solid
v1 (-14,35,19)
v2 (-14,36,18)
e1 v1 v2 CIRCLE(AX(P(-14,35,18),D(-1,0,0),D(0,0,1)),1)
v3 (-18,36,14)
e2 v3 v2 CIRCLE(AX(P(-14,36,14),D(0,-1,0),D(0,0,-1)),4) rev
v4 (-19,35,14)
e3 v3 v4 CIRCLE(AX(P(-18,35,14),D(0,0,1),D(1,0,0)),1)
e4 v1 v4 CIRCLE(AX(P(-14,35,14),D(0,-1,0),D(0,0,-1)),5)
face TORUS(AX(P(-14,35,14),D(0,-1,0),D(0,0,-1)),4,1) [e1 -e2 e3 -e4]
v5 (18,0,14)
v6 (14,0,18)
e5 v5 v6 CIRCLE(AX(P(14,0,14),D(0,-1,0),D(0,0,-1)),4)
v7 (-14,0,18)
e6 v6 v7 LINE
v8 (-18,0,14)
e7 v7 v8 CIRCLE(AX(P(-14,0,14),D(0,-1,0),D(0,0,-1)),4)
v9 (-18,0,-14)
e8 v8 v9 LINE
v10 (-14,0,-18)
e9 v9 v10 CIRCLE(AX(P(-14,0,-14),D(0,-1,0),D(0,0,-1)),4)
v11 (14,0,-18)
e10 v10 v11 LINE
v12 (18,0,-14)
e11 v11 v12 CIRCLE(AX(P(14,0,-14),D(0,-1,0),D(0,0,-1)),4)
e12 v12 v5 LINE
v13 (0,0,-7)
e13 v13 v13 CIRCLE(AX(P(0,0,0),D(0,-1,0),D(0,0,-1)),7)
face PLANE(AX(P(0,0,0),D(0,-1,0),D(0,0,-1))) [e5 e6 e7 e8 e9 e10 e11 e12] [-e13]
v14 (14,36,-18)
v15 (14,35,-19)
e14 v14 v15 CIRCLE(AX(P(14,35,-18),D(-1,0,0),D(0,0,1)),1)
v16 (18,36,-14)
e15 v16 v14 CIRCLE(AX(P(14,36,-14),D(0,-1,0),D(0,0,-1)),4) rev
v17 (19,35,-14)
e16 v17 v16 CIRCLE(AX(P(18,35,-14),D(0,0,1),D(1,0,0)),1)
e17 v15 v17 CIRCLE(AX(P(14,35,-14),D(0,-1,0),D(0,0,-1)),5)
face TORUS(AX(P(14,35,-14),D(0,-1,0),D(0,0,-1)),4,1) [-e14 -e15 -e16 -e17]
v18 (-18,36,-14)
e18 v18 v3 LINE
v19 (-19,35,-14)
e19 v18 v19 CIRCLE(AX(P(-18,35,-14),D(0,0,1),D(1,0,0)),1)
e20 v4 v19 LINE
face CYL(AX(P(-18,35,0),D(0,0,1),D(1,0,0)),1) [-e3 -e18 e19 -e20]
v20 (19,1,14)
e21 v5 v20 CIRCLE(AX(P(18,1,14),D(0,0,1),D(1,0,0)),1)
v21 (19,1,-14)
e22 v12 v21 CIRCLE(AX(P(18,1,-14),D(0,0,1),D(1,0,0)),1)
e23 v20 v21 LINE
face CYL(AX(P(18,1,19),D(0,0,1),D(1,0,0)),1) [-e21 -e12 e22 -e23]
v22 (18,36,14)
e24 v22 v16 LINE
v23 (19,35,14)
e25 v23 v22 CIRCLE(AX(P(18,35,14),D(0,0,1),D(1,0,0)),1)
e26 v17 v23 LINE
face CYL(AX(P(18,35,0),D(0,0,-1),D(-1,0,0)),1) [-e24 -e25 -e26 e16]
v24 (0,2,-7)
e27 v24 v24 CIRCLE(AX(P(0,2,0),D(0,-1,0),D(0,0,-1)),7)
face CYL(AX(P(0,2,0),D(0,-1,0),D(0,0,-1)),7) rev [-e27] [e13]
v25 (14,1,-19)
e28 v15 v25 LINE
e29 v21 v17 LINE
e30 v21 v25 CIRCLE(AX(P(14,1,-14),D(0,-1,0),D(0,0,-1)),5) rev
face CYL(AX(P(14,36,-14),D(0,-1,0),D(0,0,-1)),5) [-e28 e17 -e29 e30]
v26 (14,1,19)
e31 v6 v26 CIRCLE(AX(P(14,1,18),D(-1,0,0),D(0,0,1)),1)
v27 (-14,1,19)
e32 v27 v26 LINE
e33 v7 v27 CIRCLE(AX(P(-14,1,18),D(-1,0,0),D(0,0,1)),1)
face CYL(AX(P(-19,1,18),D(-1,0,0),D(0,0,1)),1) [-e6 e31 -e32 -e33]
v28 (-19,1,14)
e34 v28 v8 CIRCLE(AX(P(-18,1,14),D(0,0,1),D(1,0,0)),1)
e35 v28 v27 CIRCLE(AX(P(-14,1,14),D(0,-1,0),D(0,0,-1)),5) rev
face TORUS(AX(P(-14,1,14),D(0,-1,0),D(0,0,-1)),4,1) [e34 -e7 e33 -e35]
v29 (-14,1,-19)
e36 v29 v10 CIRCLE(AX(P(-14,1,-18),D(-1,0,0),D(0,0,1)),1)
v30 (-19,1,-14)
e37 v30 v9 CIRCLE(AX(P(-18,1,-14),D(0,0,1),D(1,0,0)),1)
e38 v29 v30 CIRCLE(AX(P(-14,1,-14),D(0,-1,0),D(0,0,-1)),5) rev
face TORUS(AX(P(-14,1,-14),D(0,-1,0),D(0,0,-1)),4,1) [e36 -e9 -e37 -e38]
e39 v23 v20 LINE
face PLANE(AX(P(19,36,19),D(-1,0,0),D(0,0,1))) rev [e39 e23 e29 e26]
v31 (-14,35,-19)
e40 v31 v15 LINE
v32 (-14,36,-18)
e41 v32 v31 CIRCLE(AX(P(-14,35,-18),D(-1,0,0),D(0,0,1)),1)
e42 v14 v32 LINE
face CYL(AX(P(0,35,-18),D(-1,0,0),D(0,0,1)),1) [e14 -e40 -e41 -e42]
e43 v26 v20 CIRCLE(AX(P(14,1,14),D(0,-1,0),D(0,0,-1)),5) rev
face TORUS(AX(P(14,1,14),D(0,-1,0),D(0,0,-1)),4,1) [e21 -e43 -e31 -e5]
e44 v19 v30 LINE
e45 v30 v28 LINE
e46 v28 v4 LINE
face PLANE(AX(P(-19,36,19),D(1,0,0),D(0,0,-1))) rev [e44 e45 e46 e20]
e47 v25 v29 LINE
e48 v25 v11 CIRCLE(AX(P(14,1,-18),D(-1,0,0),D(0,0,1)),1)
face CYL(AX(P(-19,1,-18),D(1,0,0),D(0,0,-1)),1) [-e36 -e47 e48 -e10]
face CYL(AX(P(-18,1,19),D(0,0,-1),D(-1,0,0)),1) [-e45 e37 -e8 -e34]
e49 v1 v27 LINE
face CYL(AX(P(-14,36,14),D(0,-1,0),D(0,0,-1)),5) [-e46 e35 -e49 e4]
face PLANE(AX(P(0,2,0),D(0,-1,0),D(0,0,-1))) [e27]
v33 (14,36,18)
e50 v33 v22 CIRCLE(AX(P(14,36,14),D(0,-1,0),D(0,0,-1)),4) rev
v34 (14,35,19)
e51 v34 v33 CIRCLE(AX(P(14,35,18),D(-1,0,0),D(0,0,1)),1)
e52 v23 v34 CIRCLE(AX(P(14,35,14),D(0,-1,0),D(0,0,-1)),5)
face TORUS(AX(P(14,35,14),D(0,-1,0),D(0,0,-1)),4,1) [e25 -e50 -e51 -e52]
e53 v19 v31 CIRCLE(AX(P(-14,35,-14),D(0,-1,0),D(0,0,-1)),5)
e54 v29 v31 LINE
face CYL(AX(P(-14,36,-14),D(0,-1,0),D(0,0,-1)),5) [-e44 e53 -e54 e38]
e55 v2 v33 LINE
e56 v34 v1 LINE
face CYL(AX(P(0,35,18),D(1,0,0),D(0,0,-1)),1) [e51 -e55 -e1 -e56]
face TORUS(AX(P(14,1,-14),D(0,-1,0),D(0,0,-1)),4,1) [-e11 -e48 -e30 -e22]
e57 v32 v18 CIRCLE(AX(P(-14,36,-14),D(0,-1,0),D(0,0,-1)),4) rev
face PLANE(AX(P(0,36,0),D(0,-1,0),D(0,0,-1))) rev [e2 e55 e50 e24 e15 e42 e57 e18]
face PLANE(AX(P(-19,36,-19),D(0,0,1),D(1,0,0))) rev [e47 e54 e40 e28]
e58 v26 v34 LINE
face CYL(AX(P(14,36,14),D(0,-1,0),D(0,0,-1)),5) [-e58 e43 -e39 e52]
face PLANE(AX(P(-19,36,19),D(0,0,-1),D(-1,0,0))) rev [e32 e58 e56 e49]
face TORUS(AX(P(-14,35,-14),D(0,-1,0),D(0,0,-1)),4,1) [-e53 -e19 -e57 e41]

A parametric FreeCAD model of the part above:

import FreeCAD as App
import Part
import Sketcher

V = App.Vector
Q = App.Units.Quantity


def edges_at(feature, points):
    """Names of the edges that pass closest to the given points."""
    edges = feature.Shape.Edges
    near = lambda p: min(range(len(edges)), key=lambda i: edges[i].distToShape(Part.Vertex(*p))[0])
    return sorted({f"Edge{near(p) + 1}" for p in points})


def add_polygon(sketch, points):
    """Adds a closed chain of lines whose ends are joined by coincident constraints."""
    first, n = sketch.GeometryCount, len(points)
    for a, b in zip(points, points[1:] + points[:1]):
        sketch.addGeometry(Part.LineSegment(App.Vector(*a, 0), App.Vector(*b, 0)), False)
    for i in range(n):
        sketch.addConstraint(Sketcher.Constraint("Coincident", first + i, 2, first + (i + 1) % n, 1))

doc = App.newDocument("Part")
body = doc.addObject("PartDesign::Body", "Body")

sketch1 = body.newObject("Sketcher::SketchObject", "Sketch")
sketch1.AttachmentSupport = (doc.getObject("XZ_Plane"), [""])
sketch1.MapMode = "FlatFace"
add_polygon(sketch1, [(-19, -19), (-19, 19), (19, 19), (19, -19)])
sketch1.addConstraint(Sketcher.Constraint("Vertical", 0))
sketch1.addConstraint(Sketcher.Constraint("Horizontal", 1))
sketch1.addConstraint(Sketcher.Constraint("Vertical", 2))
sketch1.addConstraint(Sketcher.Constraint("Horizontal", 3))
sketch1.addConstraint(Sketcher.Constraint("Symmetric", 0, 2, 2, 2, -1, 1))
sketch1.addConstraint(Sketcher.Constraint("Equal", 3, 0))
sketch1.addConstraint(Sketcher.Constraint("DistanceX", 1, 1, 1, 2, Q("38 mm")))
pad1 = body.newObject("PartDesign::Pad", "Pad")
pad1.Profile = sketch1
pad1.Length = 36
pad1.Reversed = True

sketch2 = body.newObject("Sketcher::SketchObject", "Sketch001")
sketch2.AttachmentSupport = (doc.getObject("XZ_Plane"), [""])
sketch2.MapMode = "FlatFace"
sketch2.addGeometry(Part.Circle(V(0, 0, 0), V(0, 0, 1), 7), False)
sketch2.addConstraint(Sketcher.Constraint("Coincident", 0, 3, -1, 1))
sketch2.addConstraint(Sketcher.Constraint("Diameter", 0, Q("14 mm")))
pocket1 = body.newObject("PartDesign::Pocket", "Pocket")
pocket1.Profile = sketch2
pocket1.Length = 2
doc.recompute()

fillet = body.newObject("PartDesign::Fillet", "Fillet")
fillet.Base = (pocket1, edges_at(pocket1, [
    (19, 18, 19),
    (-19, 18, 19),
    (-19, 18, -19),
    (19, 18, -19),
]))
fillet.Radius = 5
doc.recompute()

fillet2 = body.newObject("PartDesign::Fillet", "Fillet001")
fillet2.Base = (fillet, edges_at(fillet, [
    (0, 0, -19),
    (0, 36, -19),
    (19, 0, 0),
    (0, 0, 19),
    (-19, 0, 0),
    (-17.536, 0, 17.536),
    (-17.536, 0, -17.536),
    (17.536, 0, 17.536),
    (17.536, 0, -17.536),
    (19, 36, 0),
    (-19, 36, 0),
    (0, 36, 19),
    (-17.536, 36, 17.536),
    (-17.536, 36, -17.536),
    (17.536, 36, 17.536),
    (17.536, 36, -17.536),
]))
fillet2.Radius = 1

doc.recompute()
